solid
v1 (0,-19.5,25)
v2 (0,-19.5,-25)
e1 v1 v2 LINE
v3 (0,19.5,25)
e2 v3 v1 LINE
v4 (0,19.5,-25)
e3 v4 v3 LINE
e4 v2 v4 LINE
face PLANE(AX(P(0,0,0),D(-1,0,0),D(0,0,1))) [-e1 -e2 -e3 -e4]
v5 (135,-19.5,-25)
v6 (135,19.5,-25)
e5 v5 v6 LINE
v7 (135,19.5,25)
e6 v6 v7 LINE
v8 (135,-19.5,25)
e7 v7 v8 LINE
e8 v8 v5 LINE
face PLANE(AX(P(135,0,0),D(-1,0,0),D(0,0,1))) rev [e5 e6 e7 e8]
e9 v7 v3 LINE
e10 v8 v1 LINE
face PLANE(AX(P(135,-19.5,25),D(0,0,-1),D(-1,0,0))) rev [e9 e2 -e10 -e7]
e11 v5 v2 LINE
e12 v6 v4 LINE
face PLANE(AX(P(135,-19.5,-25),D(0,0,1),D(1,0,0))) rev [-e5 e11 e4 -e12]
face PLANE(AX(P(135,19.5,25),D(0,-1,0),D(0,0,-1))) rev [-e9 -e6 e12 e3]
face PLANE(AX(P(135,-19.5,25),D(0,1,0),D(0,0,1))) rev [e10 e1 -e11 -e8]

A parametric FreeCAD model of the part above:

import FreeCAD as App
import Part
import Sketcher
from FreeCAD import Vector

doc = App.newDocument("Part")
body = doc.addObject("PartDesign::Body", "Body")

# Sketch on YZ plane
sketch1 = doc.addObject("Sketcher::SketchObject", "Sketch")
body.addObject(sketch1)
sketch1.AttachmentSupport = (doc.YZ_Plane, [""])
sketch1.MapMode = "FlatFace"
sketch1.addGeometry(Part.LineSegment(Vector(20, 25, 0), Vector(-20, 25, 0)), False)
sketch1.addGeometry(Part.LineSegment(Vector(-20, 25, 0), Vector(-20, -25, 0)), False)
sketch1.addGeometry(Part.LineSegment(Vector(-20, -25, 0), Vector(20, -25, 0)), False)
sketch1.addGeometry(Part.LineSegment(Vector(20, -25, 0), Vector(20, 25, 0)), False)
sketch1.addConstraint(Sketcher.Constraint("Coincident", 0, 2, 1, 1))
sketch1.addConstraint(Sketcher.Constraint("Coincident", 1, 2, 2, 1))
sketch1.addConstraint(Sketcher.Constraint("Coincident", 2, 2, 3, 1))
sketch1.addConstraint(Sketcher.Constraint("Coincident", 3, 2, 0, 1))
sketch1.addConstraint(Sketcher.Constraint("Horizontal", 0))
sketch1.addConstraint(Sketcher.Constraint("Vertical", 1))
sketch1.addConstraint(Sketcher.Constraint("Horizontal", 2))
sketch1.addConstraint(Sketcher.Constraint("Vertical", 3))
sketch1.addConstraint(Sketcher.Constraint("Symmetric", 0, 2, 2, 2, -1, 1))
sketch1.addConstraint(Sketcher.Constraint("DistanceX", 0, 2, 0, 1, 39.0))
sketch1.addConstraint(Sketcher.Constraint("DistanceY", 1, 2, 1, 1, 50.0))
pad1 = doc.addObject("PartDesign::Pad", "Pad")
body.addObject(pad1)
pad1.Profile = sketch1
pad1.Length = 135

doc.recompute()
